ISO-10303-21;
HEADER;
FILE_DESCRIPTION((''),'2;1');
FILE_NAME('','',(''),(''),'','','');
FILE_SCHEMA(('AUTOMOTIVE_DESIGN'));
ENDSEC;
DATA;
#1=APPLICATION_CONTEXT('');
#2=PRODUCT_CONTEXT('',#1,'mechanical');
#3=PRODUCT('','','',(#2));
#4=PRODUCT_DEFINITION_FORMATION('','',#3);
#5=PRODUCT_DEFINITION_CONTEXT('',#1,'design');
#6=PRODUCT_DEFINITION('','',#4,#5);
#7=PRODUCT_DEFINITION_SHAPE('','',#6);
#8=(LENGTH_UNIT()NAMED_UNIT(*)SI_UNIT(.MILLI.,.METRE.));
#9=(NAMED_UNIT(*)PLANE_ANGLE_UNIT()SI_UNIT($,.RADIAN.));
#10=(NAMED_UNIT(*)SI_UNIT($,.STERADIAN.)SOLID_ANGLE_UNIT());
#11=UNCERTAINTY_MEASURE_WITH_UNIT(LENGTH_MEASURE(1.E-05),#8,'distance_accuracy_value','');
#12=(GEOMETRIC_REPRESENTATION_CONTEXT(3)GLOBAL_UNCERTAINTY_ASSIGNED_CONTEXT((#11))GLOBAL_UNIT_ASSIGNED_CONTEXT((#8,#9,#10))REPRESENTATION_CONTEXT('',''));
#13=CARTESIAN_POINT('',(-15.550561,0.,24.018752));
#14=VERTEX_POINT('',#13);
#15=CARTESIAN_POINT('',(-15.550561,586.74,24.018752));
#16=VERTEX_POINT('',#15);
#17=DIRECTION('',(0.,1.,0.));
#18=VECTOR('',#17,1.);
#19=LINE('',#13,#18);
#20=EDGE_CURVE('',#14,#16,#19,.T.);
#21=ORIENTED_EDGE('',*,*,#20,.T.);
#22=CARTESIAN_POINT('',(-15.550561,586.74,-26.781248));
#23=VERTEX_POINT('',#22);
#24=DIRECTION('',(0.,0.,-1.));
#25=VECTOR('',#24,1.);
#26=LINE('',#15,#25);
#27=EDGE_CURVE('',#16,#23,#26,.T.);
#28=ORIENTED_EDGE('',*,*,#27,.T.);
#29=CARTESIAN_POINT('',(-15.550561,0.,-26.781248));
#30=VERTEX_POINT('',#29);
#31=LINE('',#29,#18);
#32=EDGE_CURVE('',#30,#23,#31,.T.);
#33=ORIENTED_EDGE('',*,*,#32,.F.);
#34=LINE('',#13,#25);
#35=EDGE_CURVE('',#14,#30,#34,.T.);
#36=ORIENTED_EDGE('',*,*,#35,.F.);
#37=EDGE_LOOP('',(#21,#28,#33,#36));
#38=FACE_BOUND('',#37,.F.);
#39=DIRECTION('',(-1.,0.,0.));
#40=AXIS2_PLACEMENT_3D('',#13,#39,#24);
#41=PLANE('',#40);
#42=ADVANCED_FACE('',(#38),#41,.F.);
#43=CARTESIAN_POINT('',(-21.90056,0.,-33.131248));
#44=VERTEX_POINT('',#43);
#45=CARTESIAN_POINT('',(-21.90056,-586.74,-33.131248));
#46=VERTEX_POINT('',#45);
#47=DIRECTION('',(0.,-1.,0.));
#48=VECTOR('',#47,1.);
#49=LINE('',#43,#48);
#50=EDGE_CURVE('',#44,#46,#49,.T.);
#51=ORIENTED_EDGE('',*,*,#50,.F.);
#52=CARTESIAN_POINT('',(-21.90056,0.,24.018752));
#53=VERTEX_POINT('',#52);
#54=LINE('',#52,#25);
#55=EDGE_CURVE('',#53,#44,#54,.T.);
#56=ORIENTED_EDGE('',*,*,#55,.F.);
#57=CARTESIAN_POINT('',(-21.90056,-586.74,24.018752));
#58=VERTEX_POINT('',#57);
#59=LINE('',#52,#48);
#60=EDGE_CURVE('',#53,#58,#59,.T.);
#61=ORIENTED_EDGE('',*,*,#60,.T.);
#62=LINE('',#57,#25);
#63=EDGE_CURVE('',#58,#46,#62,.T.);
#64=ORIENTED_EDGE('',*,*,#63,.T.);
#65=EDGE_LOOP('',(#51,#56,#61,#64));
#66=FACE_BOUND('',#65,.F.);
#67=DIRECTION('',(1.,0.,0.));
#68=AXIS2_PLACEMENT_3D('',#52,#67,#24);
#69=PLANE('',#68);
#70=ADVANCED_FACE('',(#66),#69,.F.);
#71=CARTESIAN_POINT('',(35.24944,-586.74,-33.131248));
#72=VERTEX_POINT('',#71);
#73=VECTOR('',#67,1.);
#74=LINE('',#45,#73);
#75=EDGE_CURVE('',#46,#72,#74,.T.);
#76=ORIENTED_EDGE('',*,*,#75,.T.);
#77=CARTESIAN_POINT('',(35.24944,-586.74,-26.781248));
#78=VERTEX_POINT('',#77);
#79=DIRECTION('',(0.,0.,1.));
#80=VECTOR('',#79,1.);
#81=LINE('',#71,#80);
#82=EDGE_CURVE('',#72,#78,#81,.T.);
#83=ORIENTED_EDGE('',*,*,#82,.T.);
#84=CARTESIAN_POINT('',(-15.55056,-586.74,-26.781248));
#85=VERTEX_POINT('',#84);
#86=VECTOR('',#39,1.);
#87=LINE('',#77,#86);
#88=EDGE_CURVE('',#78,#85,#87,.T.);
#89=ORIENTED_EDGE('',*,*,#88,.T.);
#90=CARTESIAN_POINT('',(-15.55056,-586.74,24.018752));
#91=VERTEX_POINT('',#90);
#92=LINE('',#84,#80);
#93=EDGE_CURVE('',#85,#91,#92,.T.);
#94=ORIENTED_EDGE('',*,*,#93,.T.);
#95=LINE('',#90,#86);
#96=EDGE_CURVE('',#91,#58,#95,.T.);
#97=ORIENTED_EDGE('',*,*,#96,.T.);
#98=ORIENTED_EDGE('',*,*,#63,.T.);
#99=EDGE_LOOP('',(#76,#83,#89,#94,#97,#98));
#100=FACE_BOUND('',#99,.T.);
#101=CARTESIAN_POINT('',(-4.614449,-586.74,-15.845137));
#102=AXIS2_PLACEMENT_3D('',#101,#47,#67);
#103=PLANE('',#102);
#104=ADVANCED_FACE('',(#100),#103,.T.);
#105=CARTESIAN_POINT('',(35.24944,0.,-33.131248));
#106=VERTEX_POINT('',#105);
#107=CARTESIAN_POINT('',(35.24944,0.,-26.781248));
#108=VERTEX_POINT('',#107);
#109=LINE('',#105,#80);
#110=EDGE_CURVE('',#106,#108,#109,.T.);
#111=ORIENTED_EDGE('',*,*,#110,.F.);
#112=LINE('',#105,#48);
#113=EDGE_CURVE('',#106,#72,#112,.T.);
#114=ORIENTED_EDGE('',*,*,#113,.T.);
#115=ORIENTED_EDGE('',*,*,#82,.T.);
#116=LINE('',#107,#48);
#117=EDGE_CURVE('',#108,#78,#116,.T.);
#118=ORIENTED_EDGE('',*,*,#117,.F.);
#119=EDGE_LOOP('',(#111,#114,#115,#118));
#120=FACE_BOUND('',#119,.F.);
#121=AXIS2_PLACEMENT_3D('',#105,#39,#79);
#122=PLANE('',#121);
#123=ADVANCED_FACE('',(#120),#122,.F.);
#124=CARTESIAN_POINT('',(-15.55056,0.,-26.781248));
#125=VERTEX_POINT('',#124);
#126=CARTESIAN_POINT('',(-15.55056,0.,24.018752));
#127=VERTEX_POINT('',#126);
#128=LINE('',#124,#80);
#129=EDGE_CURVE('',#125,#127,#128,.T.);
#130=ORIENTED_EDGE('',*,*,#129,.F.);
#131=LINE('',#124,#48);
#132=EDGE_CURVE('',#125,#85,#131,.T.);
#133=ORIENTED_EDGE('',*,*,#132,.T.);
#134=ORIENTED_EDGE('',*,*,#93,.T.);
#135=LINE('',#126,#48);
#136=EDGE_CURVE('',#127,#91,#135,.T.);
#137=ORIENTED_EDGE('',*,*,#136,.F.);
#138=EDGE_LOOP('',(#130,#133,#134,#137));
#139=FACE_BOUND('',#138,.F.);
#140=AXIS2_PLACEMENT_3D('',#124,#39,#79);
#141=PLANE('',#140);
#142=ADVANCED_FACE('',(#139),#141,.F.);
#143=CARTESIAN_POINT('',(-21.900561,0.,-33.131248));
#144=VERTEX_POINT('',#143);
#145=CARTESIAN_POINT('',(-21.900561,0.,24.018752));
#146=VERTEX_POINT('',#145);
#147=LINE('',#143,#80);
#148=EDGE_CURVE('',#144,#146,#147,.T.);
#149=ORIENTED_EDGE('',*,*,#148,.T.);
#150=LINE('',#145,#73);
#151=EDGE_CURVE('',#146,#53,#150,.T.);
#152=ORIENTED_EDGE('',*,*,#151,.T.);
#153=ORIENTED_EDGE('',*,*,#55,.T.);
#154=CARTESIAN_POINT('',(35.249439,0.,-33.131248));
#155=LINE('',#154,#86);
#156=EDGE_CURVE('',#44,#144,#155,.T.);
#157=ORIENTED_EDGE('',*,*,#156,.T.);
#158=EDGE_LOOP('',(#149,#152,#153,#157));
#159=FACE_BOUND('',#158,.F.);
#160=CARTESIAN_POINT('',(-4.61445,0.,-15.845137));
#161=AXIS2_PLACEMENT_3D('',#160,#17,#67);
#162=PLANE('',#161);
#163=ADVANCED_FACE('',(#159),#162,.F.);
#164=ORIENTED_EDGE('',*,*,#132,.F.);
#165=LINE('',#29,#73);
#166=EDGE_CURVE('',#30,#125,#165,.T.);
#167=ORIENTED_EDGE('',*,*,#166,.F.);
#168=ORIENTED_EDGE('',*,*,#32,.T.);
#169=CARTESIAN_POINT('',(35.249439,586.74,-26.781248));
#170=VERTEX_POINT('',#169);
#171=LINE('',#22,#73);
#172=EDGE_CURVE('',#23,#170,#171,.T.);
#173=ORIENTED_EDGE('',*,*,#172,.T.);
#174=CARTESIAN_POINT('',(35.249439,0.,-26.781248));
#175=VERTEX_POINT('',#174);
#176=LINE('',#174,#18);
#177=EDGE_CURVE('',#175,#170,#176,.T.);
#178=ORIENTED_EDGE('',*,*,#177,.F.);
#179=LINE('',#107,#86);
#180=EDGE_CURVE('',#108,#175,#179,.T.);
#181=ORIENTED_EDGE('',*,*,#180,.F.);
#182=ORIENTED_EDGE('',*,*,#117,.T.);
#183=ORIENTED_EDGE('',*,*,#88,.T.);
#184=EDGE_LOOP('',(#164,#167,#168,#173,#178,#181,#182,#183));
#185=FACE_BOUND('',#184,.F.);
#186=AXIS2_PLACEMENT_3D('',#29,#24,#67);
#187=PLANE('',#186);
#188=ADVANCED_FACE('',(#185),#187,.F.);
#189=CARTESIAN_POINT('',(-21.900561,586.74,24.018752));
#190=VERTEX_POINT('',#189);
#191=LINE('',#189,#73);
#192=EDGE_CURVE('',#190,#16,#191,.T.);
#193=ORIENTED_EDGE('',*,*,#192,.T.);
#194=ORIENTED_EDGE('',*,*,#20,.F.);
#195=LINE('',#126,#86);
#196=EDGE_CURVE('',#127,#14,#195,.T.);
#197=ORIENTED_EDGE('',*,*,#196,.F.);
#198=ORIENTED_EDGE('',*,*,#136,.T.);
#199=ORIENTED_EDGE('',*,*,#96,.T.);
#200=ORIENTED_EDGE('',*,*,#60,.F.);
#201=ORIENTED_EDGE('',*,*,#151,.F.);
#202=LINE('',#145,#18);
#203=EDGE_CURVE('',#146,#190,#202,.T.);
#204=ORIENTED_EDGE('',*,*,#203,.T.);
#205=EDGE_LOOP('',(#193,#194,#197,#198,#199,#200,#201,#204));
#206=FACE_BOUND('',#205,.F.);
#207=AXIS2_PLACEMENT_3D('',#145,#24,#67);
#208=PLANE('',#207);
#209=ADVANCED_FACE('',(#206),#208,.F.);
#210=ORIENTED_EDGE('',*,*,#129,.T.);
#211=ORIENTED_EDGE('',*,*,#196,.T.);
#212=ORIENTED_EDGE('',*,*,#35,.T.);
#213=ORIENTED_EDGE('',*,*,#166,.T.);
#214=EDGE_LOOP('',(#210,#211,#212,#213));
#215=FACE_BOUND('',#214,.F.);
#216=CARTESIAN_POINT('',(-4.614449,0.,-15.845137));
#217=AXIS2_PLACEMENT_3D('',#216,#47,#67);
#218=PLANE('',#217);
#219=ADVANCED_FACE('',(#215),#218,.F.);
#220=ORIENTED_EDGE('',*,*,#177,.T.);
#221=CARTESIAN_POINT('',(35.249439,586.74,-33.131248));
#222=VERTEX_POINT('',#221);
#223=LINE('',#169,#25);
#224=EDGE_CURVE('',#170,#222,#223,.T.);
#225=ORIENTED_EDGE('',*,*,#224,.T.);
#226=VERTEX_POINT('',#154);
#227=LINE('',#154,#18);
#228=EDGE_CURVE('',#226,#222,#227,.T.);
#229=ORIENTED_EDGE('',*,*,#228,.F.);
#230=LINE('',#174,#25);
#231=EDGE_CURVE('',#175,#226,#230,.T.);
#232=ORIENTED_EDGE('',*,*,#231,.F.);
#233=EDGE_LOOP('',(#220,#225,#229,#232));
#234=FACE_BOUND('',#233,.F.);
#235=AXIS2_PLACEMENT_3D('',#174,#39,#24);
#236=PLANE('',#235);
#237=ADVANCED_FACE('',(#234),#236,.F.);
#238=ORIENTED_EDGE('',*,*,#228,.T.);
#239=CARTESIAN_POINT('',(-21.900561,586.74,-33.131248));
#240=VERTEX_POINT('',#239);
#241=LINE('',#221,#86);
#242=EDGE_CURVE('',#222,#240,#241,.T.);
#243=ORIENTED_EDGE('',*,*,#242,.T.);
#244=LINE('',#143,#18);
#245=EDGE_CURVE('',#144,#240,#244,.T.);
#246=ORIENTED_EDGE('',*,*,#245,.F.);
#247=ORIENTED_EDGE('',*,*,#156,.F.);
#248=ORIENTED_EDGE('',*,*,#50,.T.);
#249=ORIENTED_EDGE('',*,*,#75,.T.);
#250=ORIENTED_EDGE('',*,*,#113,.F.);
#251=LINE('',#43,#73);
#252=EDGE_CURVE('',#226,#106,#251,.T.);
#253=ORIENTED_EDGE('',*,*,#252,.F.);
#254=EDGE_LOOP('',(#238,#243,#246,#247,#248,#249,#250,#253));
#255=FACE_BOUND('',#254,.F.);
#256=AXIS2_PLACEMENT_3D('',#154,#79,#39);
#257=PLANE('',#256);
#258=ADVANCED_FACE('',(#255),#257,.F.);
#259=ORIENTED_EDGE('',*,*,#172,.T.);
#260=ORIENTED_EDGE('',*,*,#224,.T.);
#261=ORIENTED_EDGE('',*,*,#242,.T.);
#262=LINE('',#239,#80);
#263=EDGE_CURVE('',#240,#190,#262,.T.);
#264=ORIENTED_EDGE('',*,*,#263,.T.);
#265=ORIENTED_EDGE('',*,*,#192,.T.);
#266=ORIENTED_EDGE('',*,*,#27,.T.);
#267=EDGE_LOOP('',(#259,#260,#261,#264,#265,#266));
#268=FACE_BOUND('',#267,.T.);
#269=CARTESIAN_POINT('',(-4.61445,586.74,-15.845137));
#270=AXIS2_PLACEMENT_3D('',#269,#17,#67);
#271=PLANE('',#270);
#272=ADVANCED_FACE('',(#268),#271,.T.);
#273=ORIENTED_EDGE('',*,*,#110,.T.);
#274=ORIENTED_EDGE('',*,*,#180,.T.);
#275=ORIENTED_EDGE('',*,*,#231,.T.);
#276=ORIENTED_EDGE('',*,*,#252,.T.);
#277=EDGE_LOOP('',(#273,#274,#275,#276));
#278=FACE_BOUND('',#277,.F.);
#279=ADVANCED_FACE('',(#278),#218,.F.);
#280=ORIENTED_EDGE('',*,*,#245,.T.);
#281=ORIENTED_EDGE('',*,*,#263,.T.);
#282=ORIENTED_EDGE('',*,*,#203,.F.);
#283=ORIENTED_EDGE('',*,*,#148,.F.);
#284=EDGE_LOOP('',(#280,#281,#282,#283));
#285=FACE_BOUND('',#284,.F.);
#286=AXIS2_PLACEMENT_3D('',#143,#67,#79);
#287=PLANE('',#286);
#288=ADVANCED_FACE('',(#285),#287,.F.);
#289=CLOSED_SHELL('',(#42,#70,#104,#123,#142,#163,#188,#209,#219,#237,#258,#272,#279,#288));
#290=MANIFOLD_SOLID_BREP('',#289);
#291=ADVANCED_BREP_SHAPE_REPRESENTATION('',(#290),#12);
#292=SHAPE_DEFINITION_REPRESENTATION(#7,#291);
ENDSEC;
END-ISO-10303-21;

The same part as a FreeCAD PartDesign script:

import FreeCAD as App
import Part
import Sketcher

V = App.Vector
Q = App.Units.Quantity

doc = App.newDocument("Part")
body = doc.addObject("PartDesign::Body", "Body")

sketch1 = body.newObject("Sketcher::SketchObject", "Sketch")
sketch1.AttachmentSupport = (doc.getObject("XZ_Plane"), [""])
sketch1.MapMode = "FlatFace"
sketch1.addGeometry([
    Part.LineSegment(V(-16, -27, 0), V(-16, 24, 0)),
    Part.LineSegment(V(-16, 24, 0), V(-22, 24, 0)),
    Part.LineSegment(V(-22, 24, 0), V(-22, -33, 0)),
    Part.LineSegment(V(-22, -33, 0), V(35, -33, 0)),
    Part.LineSegment(V(35, -33, 0), V(35, -27, 0)),
    Part.LineSegment(V(35, -27, 0), V(-16, -27, 0)),
], False)
sketch1.addConstraint([
    Sketcher.Constraint("Coincident", 0, 2, 1, 1),
    Sketcher.Constraint("Coincident", 1, 2, 2, 1),
    Sketcher.Constraint("Coincident", 2, 2, 3, 1),
    Sketcher.Constraint("Coincident", 3, 2, 4, 1),
    Sketcher.Constraint("Coincident", 4, 2, 5, 1),
    Sketcher.Constraint("Coincident", 5, 2, 0, 1),
    Sketcher.Constraint("Vertical", 0),
    Sketcher.Constraint("Horizontal", 1),
    Sketcher.Constraint("Vertical", 2),
    Sketcher.Constraint("Horizontal", 3),
    Sketcher.Constraint("Vertical", 4),
    Sketcher.Constraint("Horizontal", 5),
    Sketcher.Constraint("Equal", 5, 0),
    Sketcher.Constraint("Equal", 3, 2),
    Sketcher.Constraint("DistanceX", 5, 2, 5, 1, Q("2 in")),
    Sketcher.Constraint("DistanceX", 1, 2, 1, 1, Q("0.25 in")),
    Sketcher.Constraint("DistanceX", 0, 2, -1, 1, 15.55056),
    Sketcher.Constraint("DistanceY", -1, 1, 0, 2, 24.018752),
])
pad1 = body.newObject("PartDesign::Pad", "Pad")
pad1.Profile = sketch1
pad1.Length = Q("23.1 in")

sketch2 = body.newObject("Sketcher::SketchObject", "Sketch001")
sketch2.AttachmentSupport = (doc.getObject("XZ_Plane"), [""])
sketch2.MapMode = "FlatFace"
sketch2.addGeometry([
    Part.LineSegment(V(-16, 24, 0), V(-16, -27, 0)),
    Part.LineSegment(V(-16, -27, 0), V(35, -27, 0)),
    Part.LineSegment(V(35, -27, 0), V(35, -33, 0)),
    Part.LineSegment(V(35, -33, 0), V(-22, -33, 0)),
    Part.LineSegment(V(-22, -33, 0), V(-22, 24, 0)),
    Part.LineSegment(V(-22, 24, 0), V(-16, 24, 0)),
], False)
sketch2.addConstraint([
    Sketcher.Constraint("Coincident", 0, 2, 1, 1),
    Sketcher.Constraint("Coincident", 1, 2, 2, 1),
    Sketcher.Constraint("Coincident", 2, 2, 3, 1),
    Sketcher.Constraint("Coincident", 3, 2, 4, 1),
    Sketcher.Constraint("Coincident", 4, 2, 5, 1),
    Sketcher.Constraint("Coincident", 5, 2, 0, 1),
    Sketcher.Constraint("Vertical", 0),
    Sketcher.Constraint("Horizontal", 1),
    Sketcher.Constraint("Vertical", 2),
    Sketcher.Constraint("Horizontal", 3),
    Sketcher.Constraint("Vertical", 4),
    Sketcher.Constraint("Horizontal", 5),
    Sketcher.Constraint("Equal", 1, 0),
    Sketcher.Constraint("Equal", 5, 2),
    Sketcher.Constraint("DistanceX", 1, 1, 1, 2, Q("2 in")),
    Sketcher.Constraint("DistanceX", 3, 2, 3, 1, Q("2.25 in")),
    Sketcher.Constraint("DistanceX", 0, 2, -1, 1, 15.550561),
    Sketcher.Constraint("DistanceY", 0, 2, -1, 1, 26.781248),
])
pad2 = body.newObject("PartDesign::Pad", "Pad001")
pad2.Profile = sketch2
pad2.Length = Q("23.1 in")
pad2.Reversed = True

doc.recompute()
